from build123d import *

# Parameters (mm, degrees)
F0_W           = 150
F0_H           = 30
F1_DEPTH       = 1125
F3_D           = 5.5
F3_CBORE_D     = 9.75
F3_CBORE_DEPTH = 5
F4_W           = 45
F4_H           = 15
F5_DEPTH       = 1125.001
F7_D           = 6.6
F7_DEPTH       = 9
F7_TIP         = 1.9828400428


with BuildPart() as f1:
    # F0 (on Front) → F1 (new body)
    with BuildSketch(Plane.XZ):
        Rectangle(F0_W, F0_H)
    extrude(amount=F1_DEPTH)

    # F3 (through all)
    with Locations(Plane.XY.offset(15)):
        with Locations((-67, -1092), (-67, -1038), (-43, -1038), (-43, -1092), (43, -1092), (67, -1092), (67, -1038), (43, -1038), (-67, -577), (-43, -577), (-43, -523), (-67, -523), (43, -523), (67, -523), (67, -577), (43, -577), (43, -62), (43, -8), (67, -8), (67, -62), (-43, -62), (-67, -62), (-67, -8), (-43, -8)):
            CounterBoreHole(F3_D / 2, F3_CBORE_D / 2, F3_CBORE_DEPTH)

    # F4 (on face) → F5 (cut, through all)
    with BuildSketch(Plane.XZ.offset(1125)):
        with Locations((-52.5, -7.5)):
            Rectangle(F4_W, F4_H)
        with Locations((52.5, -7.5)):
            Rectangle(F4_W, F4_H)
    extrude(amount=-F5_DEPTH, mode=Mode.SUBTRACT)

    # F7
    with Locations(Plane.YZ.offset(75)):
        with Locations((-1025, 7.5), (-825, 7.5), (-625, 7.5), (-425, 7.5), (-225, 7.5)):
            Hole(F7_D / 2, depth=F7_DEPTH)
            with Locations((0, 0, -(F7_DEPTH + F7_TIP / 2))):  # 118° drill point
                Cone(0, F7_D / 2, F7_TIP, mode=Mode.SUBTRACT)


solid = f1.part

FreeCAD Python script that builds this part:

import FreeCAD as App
import Part
import Sketcher

V = App.Vector
Q = App.Units.Quantity


def add_polygon(sketch, points):
    """Adds a closed chain of lines whose ends are joined by coincident constraints."""
    first, n = sketch.GeometryCount, len(points)
    for a, b in zip(points, points[1:] + points[:1]):
        sketch.addGeometry(Part.LineSegment(App.Vector(*a, 0), App.Vector(*b, 0)), False)
    for i in range(n):
        sketch.addConstraint(Sketcher.Constraint("Coincident", first + i, 2, first + (i + 1) % n, 1))

doc = App.newDocument("Part")
body = doc.addObject("PartDesign::Body", "Body")

# Sketch on XZ plane
sketch1 = doc.addObject("Sketcher::SketchObject", "Sketch")
body.addObject(sketch1)
sketch1.AttachmentSupport = (doc.XZ_Plane, [""])
sketch1.MapMode = "FlatFace"
add_polygon(sketch1, [(-75, 15), (-75, -15), (75, -15), (75, 15)])  # lines 0-3
sketch1.addConstraint([
    Sketcher.Constraint("Vertical", 0),
    Sketcher.Constraint("Horizontal", 1),
    Sketcher.Constraint("Vertical", 2),
    Sketcher.Constraint("Horizontal", 3),
    Sketcher.Constraint("Symmetric", 0, 2, 2, 2, -1, 1),
    Sketcher.Constraint("DistanceX", 1, 1, 1, 2, Q("150 mm")),
    Sketcher.Constraint("DistanceY", 0, 2, 0, 1, Q("30 mm")),
])
pad1 = doc.addObject("PartDesign::Pad", "Pad")
body.addObject(pad1)
pad1.Profile = sketch1
pad1.Length = 1125

# Sketch on XY plane
sketch2 = doc.addObject("Sketcher::SketchObject", "Sketch001")
body.addObject(sketch2)
sketch2.AttachmentSupport = (doc.XY_Plane, [""])
sketch2.MapMode = "FlatFace"
sketch2.AttachmentOffset = App.Placement(V(0, 0, 15), App.Rotation())
sketch2.addGeometry([
    Part.Circle(V(-67, -1092, 0), V(0, 0, 1), 2.75),  # 0
    Part.Circle(V(-67, -1038, 0), V(0, 0, 1), 2.75),  # 1
    Part.Circle(V(-43, -1038, 0), V(0, 0, 1), 2.75),  # 2
    Part.Circle(V(-43, -1092, 0), V(0, 0, 1), 2.75),  # 3
    Part.Circle(V(43, -1092, 0), V(0, 0, 1), 2.75),  # 4
    Part.Circle(V(67, -1092, 0), V(0, 0, 1), 2.75),  # 5
    Part.Circle(V(67, -1038, 0), V(0, 0, 1), 2.75),  # 6
    Part.Circle(V(43, -1038, 0), V(0, 0, 1), 2.75),  # 7
    Part.Circle(V(-67, -577, 0), V(0, 0, 1), 2.75),  # 8
    Part.Circle(V(-43, -577, 0), V(0, 0, 1), 2.75),  # 9
    Part.Circle(V(-43, -523, 0), V(0, 0, 1), 2.75),  # 10
    Part.Circle(V(-67, -523, 0), V(0, 0, 1), 2.75),  # 11
    Part.Circle(V(43, -523, 0), V(0, 0, 1), 2.75),  # 12
    Part.Circle(V(67, -523, 0), V(0, 0, 1), 2.75),  # 13
    Part.Circle(V(67, -577, 0), V(0, 0, 1), 2.75),  # 14
    Part.Circle(V(43, -577, 0), V(0, 0, 1), 2.75),  # 15
    Part.Circle(V(43, -62, 0), V(0, 0, 1), 2.75),  # 16
    Part.Circle(V(43, -8, 0), V(0, 0, 1), 2.75),  # 17
    Part.Circle(V(67, -8, 0), V(0, 0, 1), 2.75),  # 18
    Part.Circle(V(67, -62, 0), V(0, 0, 1), 2.75),  # 19
    Part.Circle(V(-43, -62, 0), V(0, 0, 1), 2.75),  # 20
    Part.Circle(V(-67, -62, 0), V(0, 0, 1), 2.75),  # 21
    Part.Circle(V(-67, -8, 0), V(0, 0, 1), 2.75),  # 22
    Part.Circle(V(-43, -8, 0), V(0, 0, 1), 2.75),  # 23
], False)
sketch2.addConstraint([
    Sketcher.Constraint("Equal", 0, 1),
    Sketcher.Constraint("Equal", 1, 2),
    Sketcher.Constraint("Equal", 2, 3),
    Sketcher.Constraint("Equal", 3, 4),
    Sketcher.Constraint("Equal", 4, 5),
    Sketcher.Constraint("Equal", 5, 6),
    Sketcher.Constraint("Equal", 6, 7),
    Sketcher.Constraint("Equal", 7, 8),
    Sketcher.Constraint("Equal", 8, 9),
    Sketcher.Constraint("Equal", 9, 10),
    Sketcher.Constraint("Equal", 10, 11),
    Sketcher.Constraint("Equal", 11, 12),
    Sketcher.Constraint("Equal", 12, 13),
    Sketcher.Constraint("Equal", 13, 14),
    Sketcher.Constraint("Equal", 14, 15),
    Sketcher.Constraint("Equal", 15, 16),
    Sketcher.Constraint("Equal", 16, 17),
    Sketcher.Constraint("Equal", 17, 18),
    Sketcher.Constraint("Equal", 18, 19),
    Sketcher.Constraint("Equal", 19, 20),
    Sketcher.Constraint("Equal", 20, 21),
    Sketcher.Constraint("Equal", 21, 22),
    Sketcher.Constraint("Equal", 22, 23),
    Sketcher.Constraint("Symmetric", 3, 3, 4, 3, -2),
    Sketcher.Constraint("Symmetric", 0, 3, 5, 3, -2),
    Sketcher.Constraint("Symmetric", 1, 3, 6, 3, -2),
    Sketcher.Constraint("Symmetric", 2, 3, 7, 3, -2),
    Sketcher.Constraint("Symmetric", 10, 3, 12, 3, -2),
    Sketcher.Constraint("Symmetric", 11, 3, 13, 3, -2),
    Sketcher.Constraint("Symmetric", 8, 3, 14, 3, -2),
    Sketcher.Constraint("Symmetric", 9, 3, 15, 3, -2),
    Sketcher.Constraint("Symmetric", 16, 3, 20, 3, -2),
    Sketcher.Constraint("Symmetric", 19, 3, 21, 3, -2),
    Sketcher.Constraint("Symmetric", 18, 3, 22, 3, -2),
    Sketcher.Constraint("Symmetric", 17, 3, 23, 3, -2),
    Sketcher.Constraint("Horizontal", 1, 3, 2, 3),
    Sketcher.Constraint("Horizontal", 0, 3, 3, 3),
    Sketcher.Constraint("Horizontal", 8, 3, 9, 3),
    Sketcher.Constraint("Horizontal", 10, 3, 11, 3),
    Sketcher.Constraint("Horizontal", 17, 3, 18, 3),
    Sketcher.Constraint("Horizontal", 16, 3, 19, 3),
    Sketcher.Constraint("Vertical", 0, 3, 1, 3),
    Sketcher.Constraint("Vertical", 2, 3, 3, 3),
    Sketcher.Constraint("Vertical", 1, 3, 8, 3),
    Sketcher.Constraint("Vertical", 3, 3, 9, 3),
    Sketcher.Constraint("Vertical", 9, 3, 10, 3),
    Sketcher.Constraint("Vertical", 8, 3, 11, 3),
    Sketcher.Constraint("Vertical", 15, 3, 16, 3),
    Sketcher.Constraint("Vertical", 16, 3, 17, 3),
    Sketcher.Constraint("Vertical", 14, 3, 18, 3),
    Sketcher.Constraint("Vertical", 18, 3, 19, 3),
    Sketcher.Constraint("Diameter", 0, Q("5.5 mm")),
    Sketcher.Constraint("DistanceX", 0, 3, -1, 1, Q("67 mm")),
    Sketcher.Constraint("DistanceY", 0, 3, -1, 1, Q("1092 mm")),
    Sketcher.Constraint("DistanceY", 1, 3, -1, 1, Q("1038 mm")),
    Sketcher.Constraint("DistanceX", 2, 3, -1, 1, Q("43 mm")),
    Sketcher.Constraint("DistanceY", 8, 3, -1, 1, Q("577 mm")),
    Sketcher.Constraint("DistanceY", 10, 3, -1, 1, Q("523 mm")),
    Sketcher.Constraint("DistanceY", 16, 3, -1, 1, Q("62 mm")),
    Sketcher.Constraint("DistanceY", 17, 3, -1, 1, Q("8 mm")),
])
doc.recompute()
hole = doc.addObject("PartDesign::Hole", "Hole")
body.addObject(hole)
hole.Profile = sketch2
hole.ThreadType = "None"
hole.Diameter = 5.5
hole.DepthType = "ThroughAll"
hole.HoleCutType = "Counterbore"
hole.HoleCutDiameter = 9.75
hole.HoleCutDepth = 5

# Sketch on XZ plane
sketch3 = doc.addObject("Sketcher::SketchObject", "Sketch002")
body.addObject(sketch3)
sketch3.AttachmentSupport = (doc.XZ_Plane, [""])
sketch3.MapMode = "FlatFace"
sketch3.AttachmentOffset = App.Placement(V(0, 0, 1125), App.Rotation())
add_polygon(sketch3, [(-75, 0), (-75, -15), (-30, -15), (-30, 0)])  # lines 0-3
add_polygon(sketch3, [(30, 0), (30, -15), (75, -15), (75, 0)])  # lines 4-7
sketch3.addConstraint([
    Sketcher.Constraint("Vertical", 0),
    Sketcher.Constraint("Horizontal", 1),
    Sketcher.Constraint("Vertical", 2),
    Sketcher.Constraint("Horizontal", 3),
    Sketcher.Constraint("Vertical", 4),
    Sketcher.Constraint("Horizontal", 5),
    Sketcher.Constraint("Vertical", 6),
    Sketcher.Constraint("Horizontal", 7),
    Sketcher.Constraint("Symmetric", 3, 2, 6, 2, -1, 1),
    Sketcher.Constraint("Symmetric", 1, 2, 4, 2, -2),
    Sketcher.Constraint("PointOnObject", 2, 2, -1),
    Sketcher.Constraint("DistanceX", 1, 1, 1, 2, Q("45 mm")),
    Sketcher.Constraint("DistanceY", 0, 2, 0, 1, Q("15 mm")),
    Sketcher.Constraint("DistanceX", 0, 2, -1, 1, Q("75 mm")),
])
pocket1 = doc.addObject("PartDesign::Pocket", "Pocket")
body.addObject(pocket1)
pocket1.Profile = sketch3
pocket1.Type = "ThroughAll"

# Sketch on YZ plane
sketch4 = doc.addObject("Sketcher::SketchObject", "Sketch003")
body.addObject(sketch4)
sketch4.AttachmentSupport = (doc.YZ_Plane, [""])
sketch4.MapMode = "FlatFace"
sketch4.AttachmentOffset = App.Placement(V(0, 0, 75), App.Rotation())
sketch4.addGeometry([
    Part.Circle(V(-1025, 7.5, 0), V(0, 0, 1), 3.3),  # 0
    Part.Circle(V(-825, 7.5, 0), V(0, 0, 1), 3.3),  # 1
    Part.Circle(V(-625, 7.5, 0), V(0, 0, 1), 3.3),  # 2
    Part.Circle(V(-425, 7.5, 0), V(0, 0, 1), 3.3),  # 3
    Part.Circle(V(-225, 7.5, 0), V(0, 0, 1), 3.3),  # 4
], False)
sketch4.addConstraint([
    Sketcher.Constraint("Equal", 0, 1),
    Sketcher.Constraint("Equal", 1, 2),
    Sketcher.Constraint("Equal", 2, 3),
    Sketcher.Constraint("Equal", 3, 4),
    Sketcher.Constraint("Horizontal", 0, 3, 1, 3),
    Sketcher.Constraint("Horizontal", 1, 3, 2, 3),
    Sketcher.Constraint("Horizontal", 2, 3, 3, 3),
    Sketcher.Constraint("Horizontal", 3, 3, 4, 3),
    Sketcher.Constraint("Diameter", 0, Q("6.6 mm")),
    Sketcher.Constraint("DistanceX", 0, 3, -1, 1, Q("1025 mm")),
    Sketcher.Constraint("DistanceX", 1, 3, -1, 1, Q("825 mm")),
    Sketcher.Constraint("DistanceX", 2, 3, -1, 1, Q("625 mm")),
    Sketcher.Constraint("DistanceX", 3, 3, -1, 1, Q("425 mm")),
    Sketcher.Constraint("DistanceX", 4, 3, -1, 1, Q("225 mm")),
    Sketcher.Constraint("DistanceY", -1, 1, 0, 3, Q("7.5 mm")),
])
doc.recompute()
hole2 = doc.addObject("PartDesign::Hole", "Hole001")
body.addObject(hole2)
hole2.Profile = sketch4
hole2.ThreadType = "None"
hole2.Diameter = 6.6
hole2.DepthType = "Dimension"
hole2.Depth = 9
hole2.DrillPoint = "Angled"
hole2.DrillPointAngle = 118

doc.recompute()
